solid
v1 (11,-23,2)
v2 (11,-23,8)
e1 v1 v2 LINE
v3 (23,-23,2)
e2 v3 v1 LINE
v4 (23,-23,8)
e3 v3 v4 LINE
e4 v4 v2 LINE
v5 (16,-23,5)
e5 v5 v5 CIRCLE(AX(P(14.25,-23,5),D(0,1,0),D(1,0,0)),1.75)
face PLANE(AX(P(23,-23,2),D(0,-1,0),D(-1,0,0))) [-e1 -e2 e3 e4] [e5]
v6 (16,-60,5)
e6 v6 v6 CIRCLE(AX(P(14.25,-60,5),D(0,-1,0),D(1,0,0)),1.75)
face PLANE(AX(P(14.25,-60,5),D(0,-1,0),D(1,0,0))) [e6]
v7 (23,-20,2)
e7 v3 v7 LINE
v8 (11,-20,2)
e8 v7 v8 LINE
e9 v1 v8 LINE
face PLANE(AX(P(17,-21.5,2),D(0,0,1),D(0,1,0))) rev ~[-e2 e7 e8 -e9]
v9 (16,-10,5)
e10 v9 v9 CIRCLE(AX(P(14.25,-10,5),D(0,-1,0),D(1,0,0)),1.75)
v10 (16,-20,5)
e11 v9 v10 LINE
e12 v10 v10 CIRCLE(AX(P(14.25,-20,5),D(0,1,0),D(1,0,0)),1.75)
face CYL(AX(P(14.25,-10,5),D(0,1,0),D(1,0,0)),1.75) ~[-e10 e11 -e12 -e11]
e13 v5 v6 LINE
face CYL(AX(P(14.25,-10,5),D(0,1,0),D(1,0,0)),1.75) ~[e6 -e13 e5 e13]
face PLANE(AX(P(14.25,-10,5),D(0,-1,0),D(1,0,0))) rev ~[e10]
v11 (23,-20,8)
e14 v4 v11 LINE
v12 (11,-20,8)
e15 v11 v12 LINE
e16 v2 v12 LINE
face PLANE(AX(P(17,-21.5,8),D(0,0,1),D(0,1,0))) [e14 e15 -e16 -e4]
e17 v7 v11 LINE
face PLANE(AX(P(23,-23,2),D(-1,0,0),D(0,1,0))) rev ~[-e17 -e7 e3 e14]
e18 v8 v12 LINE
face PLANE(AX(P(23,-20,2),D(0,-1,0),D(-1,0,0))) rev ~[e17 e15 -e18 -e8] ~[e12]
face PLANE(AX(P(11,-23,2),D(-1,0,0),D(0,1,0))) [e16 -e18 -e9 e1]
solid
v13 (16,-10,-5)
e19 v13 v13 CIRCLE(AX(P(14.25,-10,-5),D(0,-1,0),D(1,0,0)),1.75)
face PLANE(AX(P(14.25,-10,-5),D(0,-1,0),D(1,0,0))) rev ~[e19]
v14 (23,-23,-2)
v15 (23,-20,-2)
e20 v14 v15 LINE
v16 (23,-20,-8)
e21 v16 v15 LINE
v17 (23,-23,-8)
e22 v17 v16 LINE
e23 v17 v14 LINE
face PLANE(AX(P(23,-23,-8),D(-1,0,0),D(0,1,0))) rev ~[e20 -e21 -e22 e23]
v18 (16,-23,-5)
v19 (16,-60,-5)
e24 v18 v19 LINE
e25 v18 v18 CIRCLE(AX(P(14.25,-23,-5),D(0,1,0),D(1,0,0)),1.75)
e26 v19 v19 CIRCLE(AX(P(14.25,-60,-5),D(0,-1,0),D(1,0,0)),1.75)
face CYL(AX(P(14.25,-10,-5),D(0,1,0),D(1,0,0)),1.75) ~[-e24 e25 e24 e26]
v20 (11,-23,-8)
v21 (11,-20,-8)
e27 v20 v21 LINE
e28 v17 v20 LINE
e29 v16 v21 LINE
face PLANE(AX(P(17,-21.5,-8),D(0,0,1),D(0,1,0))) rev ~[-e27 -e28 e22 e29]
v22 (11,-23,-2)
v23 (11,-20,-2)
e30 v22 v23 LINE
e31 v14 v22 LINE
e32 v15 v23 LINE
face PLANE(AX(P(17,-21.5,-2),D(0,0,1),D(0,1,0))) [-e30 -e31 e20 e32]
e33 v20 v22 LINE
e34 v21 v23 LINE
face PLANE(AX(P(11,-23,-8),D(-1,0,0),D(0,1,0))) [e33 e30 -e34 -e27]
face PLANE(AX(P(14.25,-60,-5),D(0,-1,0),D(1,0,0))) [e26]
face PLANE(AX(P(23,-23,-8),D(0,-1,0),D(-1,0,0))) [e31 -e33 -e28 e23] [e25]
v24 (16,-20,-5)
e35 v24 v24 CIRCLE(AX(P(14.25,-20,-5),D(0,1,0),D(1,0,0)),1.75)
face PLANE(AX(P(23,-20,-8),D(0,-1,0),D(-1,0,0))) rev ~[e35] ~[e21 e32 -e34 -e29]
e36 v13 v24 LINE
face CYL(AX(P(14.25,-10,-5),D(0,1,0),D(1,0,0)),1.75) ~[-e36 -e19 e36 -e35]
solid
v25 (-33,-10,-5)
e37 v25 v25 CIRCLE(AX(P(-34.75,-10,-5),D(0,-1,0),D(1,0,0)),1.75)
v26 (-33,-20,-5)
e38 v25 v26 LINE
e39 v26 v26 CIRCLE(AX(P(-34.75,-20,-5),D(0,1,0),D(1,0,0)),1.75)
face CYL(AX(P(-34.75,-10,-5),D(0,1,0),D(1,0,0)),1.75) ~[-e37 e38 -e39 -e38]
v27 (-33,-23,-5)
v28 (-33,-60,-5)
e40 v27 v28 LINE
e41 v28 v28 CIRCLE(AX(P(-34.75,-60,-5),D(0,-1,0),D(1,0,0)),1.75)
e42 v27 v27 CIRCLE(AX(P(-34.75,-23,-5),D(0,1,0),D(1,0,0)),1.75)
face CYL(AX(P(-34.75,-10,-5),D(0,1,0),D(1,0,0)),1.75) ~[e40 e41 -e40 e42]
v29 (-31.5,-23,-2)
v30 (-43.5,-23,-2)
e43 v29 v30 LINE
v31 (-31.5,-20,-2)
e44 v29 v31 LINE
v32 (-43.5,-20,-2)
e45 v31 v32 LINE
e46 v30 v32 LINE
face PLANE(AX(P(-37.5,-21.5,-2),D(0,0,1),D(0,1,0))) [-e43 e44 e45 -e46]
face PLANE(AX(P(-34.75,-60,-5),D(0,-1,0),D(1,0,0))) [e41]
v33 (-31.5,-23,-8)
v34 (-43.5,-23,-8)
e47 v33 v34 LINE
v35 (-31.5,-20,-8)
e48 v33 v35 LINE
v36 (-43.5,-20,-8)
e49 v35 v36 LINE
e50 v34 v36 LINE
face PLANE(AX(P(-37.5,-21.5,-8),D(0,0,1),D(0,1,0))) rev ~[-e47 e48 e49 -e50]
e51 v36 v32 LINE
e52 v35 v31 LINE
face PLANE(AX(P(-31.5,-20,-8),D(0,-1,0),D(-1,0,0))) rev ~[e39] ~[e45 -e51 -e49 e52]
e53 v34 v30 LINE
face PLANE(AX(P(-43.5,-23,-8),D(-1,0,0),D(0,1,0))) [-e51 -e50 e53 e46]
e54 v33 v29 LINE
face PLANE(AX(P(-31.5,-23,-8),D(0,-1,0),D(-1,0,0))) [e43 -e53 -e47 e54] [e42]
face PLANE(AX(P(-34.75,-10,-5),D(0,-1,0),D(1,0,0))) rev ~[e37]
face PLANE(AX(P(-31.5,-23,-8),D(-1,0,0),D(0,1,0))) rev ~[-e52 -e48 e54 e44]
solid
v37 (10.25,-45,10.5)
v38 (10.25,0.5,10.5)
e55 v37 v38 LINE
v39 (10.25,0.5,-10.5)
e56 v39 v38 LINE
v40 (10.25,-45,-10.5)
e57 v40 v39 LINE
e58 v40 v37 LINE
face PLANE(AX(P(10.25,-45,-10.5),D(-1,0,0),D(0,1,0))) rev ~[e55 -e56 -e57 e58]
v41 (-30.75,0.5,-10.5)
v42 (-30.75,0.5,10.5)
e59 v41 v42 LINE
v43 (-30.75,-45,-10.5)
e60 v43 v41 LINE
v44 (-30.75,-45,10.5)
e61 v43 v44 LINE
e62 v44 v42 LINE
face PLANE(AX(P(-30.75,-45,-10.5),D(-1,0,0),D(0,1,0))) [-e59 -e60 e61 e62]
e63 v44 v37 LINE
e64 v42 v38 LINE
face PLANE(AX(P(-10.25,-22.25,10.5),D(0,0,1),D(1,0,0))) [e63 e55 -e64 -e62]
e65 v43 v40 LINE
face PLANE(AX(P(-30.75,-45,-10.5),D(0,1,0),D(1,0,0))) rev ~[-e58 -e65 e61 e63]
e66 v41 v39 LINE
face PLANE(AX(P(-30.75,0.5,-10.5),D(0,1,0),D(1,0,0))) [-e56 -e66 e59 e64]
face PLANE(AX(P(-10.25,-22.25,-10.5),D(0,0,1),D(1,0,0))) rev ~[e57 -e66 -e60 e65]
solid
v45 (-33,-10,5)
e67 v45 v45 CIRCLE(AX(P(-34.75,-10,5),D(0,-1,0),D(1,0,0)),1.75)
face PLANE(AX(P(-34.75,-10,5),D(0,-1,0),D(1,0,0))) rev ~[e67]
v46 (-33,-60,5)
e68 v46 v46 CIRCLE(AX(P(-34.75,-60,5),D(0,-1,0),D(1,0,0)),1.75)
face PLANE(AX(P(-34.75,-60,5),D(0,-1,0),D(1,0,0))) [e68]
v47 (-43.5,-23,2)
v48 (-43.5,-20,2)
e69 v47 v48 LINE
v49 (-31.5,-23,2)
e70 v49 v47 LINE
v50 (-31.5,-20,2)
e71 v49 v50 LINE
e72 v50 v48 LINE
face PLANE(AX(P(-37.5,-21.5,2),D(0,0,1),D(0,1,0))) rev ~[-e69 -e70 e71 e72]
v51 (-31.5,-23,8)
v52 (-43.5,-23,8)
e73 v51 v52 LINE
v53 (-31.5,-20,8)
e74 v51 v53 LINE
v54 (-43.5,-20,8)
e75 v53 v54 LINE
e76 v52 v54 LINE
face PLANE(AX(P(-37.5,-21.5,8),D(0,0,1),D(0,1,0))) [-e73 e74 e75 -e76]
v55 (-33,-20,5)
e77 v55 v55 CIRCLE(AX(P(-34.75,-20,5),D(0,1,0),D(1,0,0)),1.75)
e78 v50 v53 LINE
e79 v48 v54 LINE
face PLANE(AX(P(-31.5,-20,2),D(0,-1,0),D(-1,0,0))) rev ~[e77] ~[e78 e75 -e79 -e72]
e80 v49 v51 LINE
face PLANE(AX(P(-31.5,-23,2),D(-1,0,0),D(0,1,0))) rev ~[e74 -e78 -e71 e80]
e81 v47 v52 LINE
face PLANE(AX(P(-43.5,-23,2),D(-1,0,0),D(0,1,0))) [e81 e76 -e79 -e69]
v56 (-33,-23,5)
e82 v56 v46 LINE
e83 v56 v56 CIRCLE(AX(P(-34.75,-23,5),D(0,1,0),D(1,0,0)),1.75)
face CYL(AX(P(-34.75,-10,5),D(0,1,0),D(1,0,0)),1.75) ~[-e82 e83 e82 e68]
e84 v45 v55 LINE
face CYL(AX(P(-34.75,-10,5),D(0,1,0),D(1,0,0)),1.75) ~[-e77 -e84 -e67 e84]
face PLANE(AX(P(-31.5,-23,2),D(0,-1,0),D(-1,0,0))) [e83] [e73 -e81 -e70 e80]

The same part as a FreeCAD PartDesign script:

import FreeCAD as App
import Part
import Sketcher
from FreeCAD import Vector
Q = App.Units.Quantity

doc = App.newDocument("Part")
body = doc.addObject("PartDesign::Body", "Body")

sketch1 = body.newObject("Sketcher::SketchObject", "Sketch")
sketch1.AttachmentSupport = (doc.getObject("XY_Plane"), [""])
sketch1.MapMode = "FlatFace"
sketch1.addGeometry(Part.Circle(Vector(0, 0, 0), Vector(0, 0, 1), 1.8), False)
sketch1.addConstraint(Sketcher.Constraint("Coincident", 0, 3, -1, 1))
sketch1.addConstraint(Sketcher.Constraint("Diameter", 0, Q("3.5 mm")))
pad1 = body.newObject("PartDesign::Pad", "Pad")
pad1.Profile = sketch1
pad1.Length = 50
body2 = doc.addObject("PartDesign::Body", "Body001")
doc.recompute()

body.Placement = App.Placement(Vector(0, 0, 0), App.Rotation(Vector(1, 0, 0), 90))
boolean = body2.newObject("PartDesign::Boolean", "Boolean")
boolean.Type = "Fuse"
boolean.addObjects([body])
body3 = doc.addObject("PartDesign::Body", "Body002")
doc.recompute()

body2.Placement = App.Placement(Vector(14.25, 0, 17), App.Rotation(Vector(0, 0, 1), 0))
boolean2 = body3.newObject("PartDesign::Boolean", "Boolean001")
boolean2.Type = "Fuse"
boolean2.addObjects([body2])
body4 = doc.addObject("PartDesign::Body", "Body003")

sketch2 = body4.newObject("Sketcher::SketchObject", "Sketch001")
sketch2.AttachmentSupport = (doc.getObject("XY_Plane003"), [""])
sketch2.MapMode = "FlatFace"
sketch2.addGeometry(Part.Circle(Vector(0, 0, 0), Vector(0, 0, 1), 1.8), False)
sketch2.addConstraint(Sketcher.Constraint("Coincident", 0, 3, -1, 1))
sketch2.addConstraint(Sketcher.Constraint("Diameter", 0, Q("3.5 mm")))
pad2 = body4.newObject("PartDesign::Pad", "Pad001")
pad2.Profile = sketch2
pad2.Length = 50
body5 = doc.addObject("PartDesign::Body", "Body004")
doc.recompute()

body4.Placement = App.Placement(Vector(0, 0, 0), App.Rotation(Vector(1, 0, 0), 90))
boolean3 = body5.newObject("PartDesign::Boolean", "Boolean002")
boolean3.Type = "Fuse"
boolean3.addObjects([body4])
body6 = doc.addObject("PartDesign::Body", "Body005")
doc.recompute()

body5.Placement = App.Placement(Vector(14.25, 0, 7), App.Rotation(Vector(0, 0, 1), 0))
boolean4 = body6.newObject("PartDesign::Boolean", "Boolean003")
boolean4.Type = "Fuse"
boolean4.addObjects([body5])
body7 = doc.addObject("PartDesign::Body", "Body006")

sketch3 = body7.newObject("Sketcher::SketchObject", "Sketch002")
sketch3.AttachmentSupport = (doc.getObject("XY_Plane006"), [""])
sketch3.MapMode = "FlatFace"
sketch3.addGeometry(Part.Circle(Vector(0, 0, 0), Vector(0, 0, 1), 1.8), False)
sketch3.addConstraint(Sketcher.Constraint("Coincident", 0, 3, -1, 1))
sketch3.addConstraint(Sketcher.Constraint("Diameter", 0, Q("3.5 mm")))
pad3 = body7.newObject("PartDesign::Pad", "Pad002")
pad3.Profile = sketch3
pad3.Length = 50
body8 = doc.addObject("PartDesign::Body", "Body007")
doc.recompute()

body7.Placement = App.Placement(Vector(0, 0, 0), App.Rotation(Vector(1, 0, 0), 90))
boolean5 = body8.newObject("PartDesign::Boolean", "Boolean004")
boolean5.Type = "Fuse"
boolean5.addObjects([body7])
body9 = doc.addObject("PartDesign::Body", "Body008")
doc.recompute()

body8.Placement = App.Placement(Vector(-34.75, 0, 7), App.Rotation(Vector(0, 0, 1), 0))
boolean6 = body9.newObject("PartDesign::Boolean", "Boolean005")
boolean6.Type = "Fuse"
boolean6.addObjects([body8])
body10 = doc.addObject("PartDesign::Body", "Body009")

sketch4 = body10.newObject("Sketcher::SketchObject", "Sketch003")
sketch4.AttachmentSupport = (doc.getObject("XY_Plane009"), [""])
sketch4.MapMode = "FlatFace"
sketch4.addGeometry(Part.Circle(Vector(0, 0, 0), Vector(0, 0, 1), 1.8), False)
sketch4.addConstraint(Sketcher.Constraint("Coincident", 0, 3, -1, 1))
sketch4.addConstraint(Sketcher.Constraint("Diameter", 0, Q("3.5 mm")))
pad4 = body10.newObject("PartDesign::Pad", "Pad003")
pad4.Profile = sketch4
pad4.Length = 50
body11 = doc.addObject("PartDesign::Body", "Body010")
doc.recompute()

body10.Placement = App.Placement(Vector(0, 0, 0), App.Rotation(Vector(1, 0, 0), 90))
boolean7 = body11.newObject("PartDesign::Boolean", "Boolean006")
boolean7.Type = "Fuse"
boolean7.addObjects([body10])
body12 = doc.addObject("PartDesign::Body", "Body011")
body12.AllowCompound = True
doc.recompute()

body11.Placement = App.Placement(Vector(-34.75, 0, 17), App.Rotation(Vector(0, 0, 1), 0))
boolean8 = body12.newObject("PartDesign::Boolean", "Boolean007")
boolean8.Type = "Fuse"
boolean8.addObjects([body11])
doc.recompute()

boolean9 = body12.newObject("PartDesign::Boolean", "Boolean008")
boolean9.Type = "Fuse"
boolean9.addObjects([body3])
doc.recompute()

boolean10 = body12.newObject("PartDesign::Boolean", "Boolean009")
boolean10.Type = "Fuse"
boolean10.addObjects([body6])
doc.recompute()

boolean11 = body12.newObject("PartDesign::Boolean", "Boolean010")
boolean11.Type = "Fuse"
boolean11.addObjects([body9])
body13 = doc.addObject("PartDesign::Body", "Body012")
body13.AllowCompound = True
doc.recompute()

body12.Placement = App.Placement(Vector(0, -10, -12), App.Rotation(Vector(0, 0, 1), 0))
boolean12 = body13.newObject("PartDesign::Boolean", "Boolean011")
boolean12.Type = "Fuse"
boolean12.addObjects([body12])
body14 = doc.addObject("PartDesign::Body", "Body013")

sketch5 = body14.newObject("Sketcher::SketchObject", "Sketch004")
sketch5.AttachmentSupport = (doc.getObject("XY_Plane013"), [""])
sketch5.MapMode = "FlatFace"
sketch5.addGeometry(Part.LineSegment(Vector(0, 12, 0), Vector(0, 0, 0)), False)
sketch5.addGeometry(Part.LineSegment(Vector(0, 0, 0), Vector(3, 0, 0)), False)
sketch5.addGeometry(Part.LineSegment(Vector(3, 0, 0), Vector(3, 12, 0)), False)
sketch5.addGeometry(Part.LineSegment(Vector(3, 12, 0), Vector(0, 12, 0)), False)
sketch5.addConstraint(Sketcher.Constraint("Coincident", 0, 2, 1, 1))
sketch5.addConstraint(Sketcher.Constraint("Coincident", 1, 2, 2, 1))
sketch5.addConstraint(Sketcher.Constraint("Coincident", 2, 2, 3, 1))
sketch5.addConstraint(Sketcher.Constraint("Coincident", 3, 2, 0, 1))
sketch5.addConstraint(Sketcher.Constraint("Vertical", 0))
sketch5.addConstraint(Sketcher.Constraint("Horizontal", 1))
sketch5.addConstraint(Sketcher.Constraint("Vertical", 2))
sketch5.addConstraint(Sketcher.Constraint("Horizontal", 3))
sketch5.addConstraint(Sketcher.Constraint("Coincident", 0, 2, -1, 1))
sketch5.addConstraint(Sketcher.Constraint("DistanceX", 1, 1, 1, 2, Q("3 mm")))
sketch5.addConstraint(Sketcher.Constraint("DistanceY", 0, 2, 0, 1, Q("12 mm")))
pad5 = body14.newObject("PartDesign::Pad", "Pad004")
pad5.Profile = sketch5
pad5.Length = 6
body15 = doc.addObject("PartDesign::Body", "Body014")
doc.recompute()

body14.Placement = App.Placement(Vector(-31.5, -20, -8), App.Rotation(Vector(0, 0, 1), 90))
boolean13 = body15.newObject("PartDesign::Boolean", "Boolean012")
boolean13.Type = "Fuse"
boolean13.addObjects([body14])
body16 = doc.addObject("PartDesign::Body", "Body015")

sketch6 = body16.newObject("Sketcher::SketchObject", "Sketch005")
sketch6.AttachmentSupport = (doc.getObject("XY_Plane015"), [""])
sketch6.MapMode = "FlatFace"
sketch6.addGeometry(Part.LineSegment(Vector(0, 12, 0), Vector(0, 0, 0)), False)
sketch6.addGeometry(Part.LineSegment(Vector(0, 0, 0), Vector(3, 0, 0)), False)
sketch6.addGeometry(Part.LineSegment(Vector(3, 0, 0), Vector(3, 12, 0)), False)
sketch6.addGeometry(Part.LineSegment(Vector(3, 12, 0), Vector(0, 12, 0)), False)
sketch6.addConstraint(Sketcher.Constraint("Coincident", 0, 2, 1, 1))
sketch6.addConstraint(Sketcher.Constraint("Coincident", 1, 2, 2, 1))
sketch6.addConstraint(Sketcher.Constraint("Coincident", 2, 2, 3, 1))
sketch6.addConstraint(Sketcher.Constraint("Coincident", 3, 2, 0, 1))
sketch6.addConstraint(Sketcher.Constraint("Vertical", 0))
sketch6.addConstraint(Sketcher.Constraint("Horizontal", 1))
sketch6.addConstraint(Sketcher.Constraint("Vertical", 2))
sketch6.addConstraint(Sketcher.Constraint("Horizontal", 3))
sketch6.addConstraint(Sketcher.Constraint("Coincident", 0, 2, -1, 1))
sketch6.addConstraint(Sketcher.Constraint("DistanceX", 1, 1, 1, 2, Q("3 mm")))
sketch6.addConstraint(Sketcher.Constraint("DistanceY", 0, 2, 0, 1, Q("12 mm")))
pad6 = body16.newObject("PartDesign::Pad", "Pad005")
pad6.Profile = sketch6
pad6.Length = 6
body17 = doc.addObject("PartDesign::Body", "Body016")
doc.recompute()

body16.Placement = App.Placement(Vector(23, -20, 2), App.Rotation(Vector(0, 0, 1), 90))
boolean14 = body17.newObject("PartDesign::Boolean", "Boolean013")
boolean14.Type = "Fuse"
boolean14.addObjects([body16])
body18 = doc.addObject("PartDesign::Body", "Body017")

sketch7 = body18.newObject("Sketcher::SketchObject", "Sketch006")
sketch7.AttachmentSupport = (doc.getObject("XY_Plane017"), [""])
sketch7.MapMode = "FlatFace"
sketch7.addGeometry(Part.LineSegment(Vector(0, 12, 0), Vector(0, 0, 0)), False)
sketch7.addGeometry(Part.LineSegment(Vector(0, 0, 0), Vector(3, 0, 0)), False)
sketch7.addGeometry(Part.LineSegment(Vector(3, 0, 0), Vector(3, 12, 0)), False)
sketch7.addGeometry(Part.LineSegment(Vector(3, 12, 0), Vector(0, 12, 0)), False)
sketch7.addConstraint(Sketcher.Constraint("Coincident", 0, 2, 1, 1))
sketch7.addConstraint(Sketcher.Constraint("Coincident", 1, 2, 2, 1))
sketch7.addConstraint(Sketcher.Constraint("Coincident", 2, 2, 3, 1))
sketch7.addConstraint(Sketcher.Constraint("Coincident", 3, 2, 0, 1))
sketch7.addConstraint(Sketcher.Constraint("Vertical", 0))
sketch7.addConstraint(Sketcher.Constraint("Horizontal", 1))
sketch7.addConstraint(Sketcher.Constraint("Vertical", 2))
sketch7.addConstraint(Sketcher.Constraint("Horizontal", 3))
sketch7.addConstraint(Sketcher.Constraint("Coincident", 0, 2, -1, 1))
sketch7.addConstraint(Sketcher.Constraint("DistanceX", 1, 1, 1, 2, Q("3 mm")))
sketch7.addConstraint(Sketcher.Constraint("DistanceY", 0, 2, 0, 1, Q("12 mm")))
pad7 = body18.newObject("PartDesign::Pad", "Pad006")
pad7.Profile = sketch7
pad7.Length = 6
body19 = doc.addObject("PartDesign::Body", "Body018")
doc.recompute()

body18.Placement = App.Placement(Vector(23, -20, -8), App.Rotation(Vector(0, 0, 1), 90))
boolean15 = body19.newObject("PartDesign::Boolean", "Boolean014")
boolean15.Type = "Fuse"
boolean15.addObjects([body18])
body20 = doc.addObject("PartDesign::Body", "Body019")

sketch8 = body20.newObject("Sketcher::SketchObject", "Sketch007")
sketch8.AttachmentSupport = (doc.getObject("XY_Plane019"), [""])
sketch8.MapMode = "FlatFace"
sketch8.addGeometry(Part.LineSegment(Vector(0, 12, 0), Vector(0, 0, 0)), False)
sketch8.addGeometry(Part.LineSegment(Vector(0, 0, 0), Vector(3, 0, 0)), False)
sketch8.addGeometry(Part.LineSegment(Vector(3, 0, 0), Vector(3, 12, 0)), False)
sketch8.addGeometry(Part.LineSegment(Vector(3, 12, 0), Vector(0, 12, 0)), False)
sketch8.addConstraint(Sketcher.Constraint("Coincident", 0, 2, 1, 1))
sketch8.addConstraint(Sketcher.Constraint("Coincident", 1, 2, 2, 1))
sketch8.addConstraint(Sketcher.Constraint("Coincident", 2, 2, 3, 1))
sketch8.addConstraint(Sketcher.Constraint("Coincident", 3, 2, 0, 1))
sketch8.addConstraint(Sketcher.Constraint("Vertical", 0))
sketch8.addConstraint(Sketcher.Constraint("Horizontal", 1))
sketch8.addConstraint(Sketcher.Constraint("Vertical", 2))
sketch8.addConstraint(Sketcher.Constraint("Horizontal", 3))
sketch8.addConstraint(Sketcher.Constraint("Coincident", 0, 2, -1, 1))
sketch8.addConstraint(Sketcher.Constraint("DistanceX", 1, 1, 1, 2, Q("3 mm")))
sketch8.addConstraint(Sketcher.Constraint("DistanceY", 0, 2, 0, 1, Q("12 mm")))
pad8 = body20.newObject("PartDesign::Pad", "Pad007")
pad8.Profile = sketch8
pad8.Length = 6
body21 = doc.addObject("PartDesign::Body", "Body020")
body21.AllowCompound = True
doc.recompute()

body20.Placement = App.Placement(Vector(-31.5, -20, 2), App.Rotation(Vector(0, 0, 1), 90))
boolean16 = body21.newObject("PartDesign::Boolean", "Boolean015")
boolean16.Type = "Fuse"
boolean16.addObjects([body20])
doc.recompute()

boolean17 = body21.newObject("PartDesign::Boolean", "Boolean016")
boolean17.Type = "Fuse"
boolean17.addObjects([body15])
doc.recompute()

boolean18 = body21.newObject("PartDesign::Boolean", "Boolean017")
boolean18.Type = "Fuse"
boolean18.addObjects([body17])
doc.recompute()

boolean19 = body21.newObject("PartDesign::Boolean", "Boolean018")
boolean19.Type = "Fuse"
boolean19.addObjects([body19])
body22 = doc.addObject("PartDesign::Body", "Body021")
body22.AllowCompound = True
doc.recompute()

body21.Placement = App.Placement(Vector(0, -3, 0), App.Rotation(Vector(0, 0, 1), 0))
boolean20 = body22.newObject("PartDesign::Boolean", "Boolean019")
boolean20.Type = "Fuse"
boolean20.addObjects([body21])
body23 = doc.addObject("PartDesign::Body", "Body022")
body23.AllowCompound = True

sketch9 = body23.newObject("Sketcher::SketchObject", "Sketch008")
sketch9.AttachmentSupport = (doc.getObject("XY_Plane022"), [""])
sketch9.MapMode = "FlatFace"
sketch9.AttachmentOffset = App.Placement(Vector(0, 0, -10.5), App.Rotation())
sketch9.addGeometry(Part.LineSegment(Vector(-31, 0, 0), Vector(-31, -45, 0)), False)
sketch9.addGeometry(Part.LineSegment(Vector(-31, -45, 0), Vector(10, -45, 0)), False)
sketch9.addGeometry(Part.LineSegment(Vector(10, -45, 0), Vector(10, 0, 0)), False)
sketch9.addGeometry(Part.LineSegment(Vector(10, 0, 0), Vector(-31, 0, 0)), False)
sketch9.addConstraint(Sketcher.Constraint("Coincident", 0, 2, 1, 1))
sketch9.addConstraint(Sketcher.Constraint("Coincident", 1, 2, 2, 1))
sketch9.addConstraint(Sketcher.Constraint("Coincident", 2, 2, 3, 1))
sketch9.addConstraint(Sketcher.Constraint("Coincident", 3, 2, 0, 1))
sketch9.addConstraint(Sketcher.Constraint("Vertical", 0))
sketch9.addConstraint(Sketcher.Constraint("Horizontal", 1))
sketch9.addConstraint(Sketcher.Constraint("Vertical", 2))
sketch9.addConstraint(Sketcher.Constraint("Horizontal", 3))
sketch9.addConstraint(Sketcher.Constraint("DistanceX", 1, 1, 1, 2, Q("41 mm")))
sketch9.addConstraint(Sketcher.Constraint("DistanceY", 0, 2, 0, 1, Q("45.5 mm")))
sketch9.addConstraint(Sketcher.Constraint("DistanceY", 0, 2, -1, 1, Q("45 mm")))
sketch9.addConstraint(Sketcher.Constraint("DistanceX", 0, 2, -1, 1, Q("30.75 mm")))
pad9 = body23.newObject("PartDesign::Pad", "Pad008")
pad9.Profile = sketch9
pad9.Length = 21
doc.recompute()

boolean21 = body23.newObject("PartDesign::Boolean", "Boolean020")
boolean21.Type = "Fuse"
boolean21.addObjects([body13])
doc.recompute()

boolean22 = body23.newObject("PartDesign::Boolean", "Boolean021")
boolean22.Type = "Fuse"
boolean22.addObjects([body22])

doc.recompute()
